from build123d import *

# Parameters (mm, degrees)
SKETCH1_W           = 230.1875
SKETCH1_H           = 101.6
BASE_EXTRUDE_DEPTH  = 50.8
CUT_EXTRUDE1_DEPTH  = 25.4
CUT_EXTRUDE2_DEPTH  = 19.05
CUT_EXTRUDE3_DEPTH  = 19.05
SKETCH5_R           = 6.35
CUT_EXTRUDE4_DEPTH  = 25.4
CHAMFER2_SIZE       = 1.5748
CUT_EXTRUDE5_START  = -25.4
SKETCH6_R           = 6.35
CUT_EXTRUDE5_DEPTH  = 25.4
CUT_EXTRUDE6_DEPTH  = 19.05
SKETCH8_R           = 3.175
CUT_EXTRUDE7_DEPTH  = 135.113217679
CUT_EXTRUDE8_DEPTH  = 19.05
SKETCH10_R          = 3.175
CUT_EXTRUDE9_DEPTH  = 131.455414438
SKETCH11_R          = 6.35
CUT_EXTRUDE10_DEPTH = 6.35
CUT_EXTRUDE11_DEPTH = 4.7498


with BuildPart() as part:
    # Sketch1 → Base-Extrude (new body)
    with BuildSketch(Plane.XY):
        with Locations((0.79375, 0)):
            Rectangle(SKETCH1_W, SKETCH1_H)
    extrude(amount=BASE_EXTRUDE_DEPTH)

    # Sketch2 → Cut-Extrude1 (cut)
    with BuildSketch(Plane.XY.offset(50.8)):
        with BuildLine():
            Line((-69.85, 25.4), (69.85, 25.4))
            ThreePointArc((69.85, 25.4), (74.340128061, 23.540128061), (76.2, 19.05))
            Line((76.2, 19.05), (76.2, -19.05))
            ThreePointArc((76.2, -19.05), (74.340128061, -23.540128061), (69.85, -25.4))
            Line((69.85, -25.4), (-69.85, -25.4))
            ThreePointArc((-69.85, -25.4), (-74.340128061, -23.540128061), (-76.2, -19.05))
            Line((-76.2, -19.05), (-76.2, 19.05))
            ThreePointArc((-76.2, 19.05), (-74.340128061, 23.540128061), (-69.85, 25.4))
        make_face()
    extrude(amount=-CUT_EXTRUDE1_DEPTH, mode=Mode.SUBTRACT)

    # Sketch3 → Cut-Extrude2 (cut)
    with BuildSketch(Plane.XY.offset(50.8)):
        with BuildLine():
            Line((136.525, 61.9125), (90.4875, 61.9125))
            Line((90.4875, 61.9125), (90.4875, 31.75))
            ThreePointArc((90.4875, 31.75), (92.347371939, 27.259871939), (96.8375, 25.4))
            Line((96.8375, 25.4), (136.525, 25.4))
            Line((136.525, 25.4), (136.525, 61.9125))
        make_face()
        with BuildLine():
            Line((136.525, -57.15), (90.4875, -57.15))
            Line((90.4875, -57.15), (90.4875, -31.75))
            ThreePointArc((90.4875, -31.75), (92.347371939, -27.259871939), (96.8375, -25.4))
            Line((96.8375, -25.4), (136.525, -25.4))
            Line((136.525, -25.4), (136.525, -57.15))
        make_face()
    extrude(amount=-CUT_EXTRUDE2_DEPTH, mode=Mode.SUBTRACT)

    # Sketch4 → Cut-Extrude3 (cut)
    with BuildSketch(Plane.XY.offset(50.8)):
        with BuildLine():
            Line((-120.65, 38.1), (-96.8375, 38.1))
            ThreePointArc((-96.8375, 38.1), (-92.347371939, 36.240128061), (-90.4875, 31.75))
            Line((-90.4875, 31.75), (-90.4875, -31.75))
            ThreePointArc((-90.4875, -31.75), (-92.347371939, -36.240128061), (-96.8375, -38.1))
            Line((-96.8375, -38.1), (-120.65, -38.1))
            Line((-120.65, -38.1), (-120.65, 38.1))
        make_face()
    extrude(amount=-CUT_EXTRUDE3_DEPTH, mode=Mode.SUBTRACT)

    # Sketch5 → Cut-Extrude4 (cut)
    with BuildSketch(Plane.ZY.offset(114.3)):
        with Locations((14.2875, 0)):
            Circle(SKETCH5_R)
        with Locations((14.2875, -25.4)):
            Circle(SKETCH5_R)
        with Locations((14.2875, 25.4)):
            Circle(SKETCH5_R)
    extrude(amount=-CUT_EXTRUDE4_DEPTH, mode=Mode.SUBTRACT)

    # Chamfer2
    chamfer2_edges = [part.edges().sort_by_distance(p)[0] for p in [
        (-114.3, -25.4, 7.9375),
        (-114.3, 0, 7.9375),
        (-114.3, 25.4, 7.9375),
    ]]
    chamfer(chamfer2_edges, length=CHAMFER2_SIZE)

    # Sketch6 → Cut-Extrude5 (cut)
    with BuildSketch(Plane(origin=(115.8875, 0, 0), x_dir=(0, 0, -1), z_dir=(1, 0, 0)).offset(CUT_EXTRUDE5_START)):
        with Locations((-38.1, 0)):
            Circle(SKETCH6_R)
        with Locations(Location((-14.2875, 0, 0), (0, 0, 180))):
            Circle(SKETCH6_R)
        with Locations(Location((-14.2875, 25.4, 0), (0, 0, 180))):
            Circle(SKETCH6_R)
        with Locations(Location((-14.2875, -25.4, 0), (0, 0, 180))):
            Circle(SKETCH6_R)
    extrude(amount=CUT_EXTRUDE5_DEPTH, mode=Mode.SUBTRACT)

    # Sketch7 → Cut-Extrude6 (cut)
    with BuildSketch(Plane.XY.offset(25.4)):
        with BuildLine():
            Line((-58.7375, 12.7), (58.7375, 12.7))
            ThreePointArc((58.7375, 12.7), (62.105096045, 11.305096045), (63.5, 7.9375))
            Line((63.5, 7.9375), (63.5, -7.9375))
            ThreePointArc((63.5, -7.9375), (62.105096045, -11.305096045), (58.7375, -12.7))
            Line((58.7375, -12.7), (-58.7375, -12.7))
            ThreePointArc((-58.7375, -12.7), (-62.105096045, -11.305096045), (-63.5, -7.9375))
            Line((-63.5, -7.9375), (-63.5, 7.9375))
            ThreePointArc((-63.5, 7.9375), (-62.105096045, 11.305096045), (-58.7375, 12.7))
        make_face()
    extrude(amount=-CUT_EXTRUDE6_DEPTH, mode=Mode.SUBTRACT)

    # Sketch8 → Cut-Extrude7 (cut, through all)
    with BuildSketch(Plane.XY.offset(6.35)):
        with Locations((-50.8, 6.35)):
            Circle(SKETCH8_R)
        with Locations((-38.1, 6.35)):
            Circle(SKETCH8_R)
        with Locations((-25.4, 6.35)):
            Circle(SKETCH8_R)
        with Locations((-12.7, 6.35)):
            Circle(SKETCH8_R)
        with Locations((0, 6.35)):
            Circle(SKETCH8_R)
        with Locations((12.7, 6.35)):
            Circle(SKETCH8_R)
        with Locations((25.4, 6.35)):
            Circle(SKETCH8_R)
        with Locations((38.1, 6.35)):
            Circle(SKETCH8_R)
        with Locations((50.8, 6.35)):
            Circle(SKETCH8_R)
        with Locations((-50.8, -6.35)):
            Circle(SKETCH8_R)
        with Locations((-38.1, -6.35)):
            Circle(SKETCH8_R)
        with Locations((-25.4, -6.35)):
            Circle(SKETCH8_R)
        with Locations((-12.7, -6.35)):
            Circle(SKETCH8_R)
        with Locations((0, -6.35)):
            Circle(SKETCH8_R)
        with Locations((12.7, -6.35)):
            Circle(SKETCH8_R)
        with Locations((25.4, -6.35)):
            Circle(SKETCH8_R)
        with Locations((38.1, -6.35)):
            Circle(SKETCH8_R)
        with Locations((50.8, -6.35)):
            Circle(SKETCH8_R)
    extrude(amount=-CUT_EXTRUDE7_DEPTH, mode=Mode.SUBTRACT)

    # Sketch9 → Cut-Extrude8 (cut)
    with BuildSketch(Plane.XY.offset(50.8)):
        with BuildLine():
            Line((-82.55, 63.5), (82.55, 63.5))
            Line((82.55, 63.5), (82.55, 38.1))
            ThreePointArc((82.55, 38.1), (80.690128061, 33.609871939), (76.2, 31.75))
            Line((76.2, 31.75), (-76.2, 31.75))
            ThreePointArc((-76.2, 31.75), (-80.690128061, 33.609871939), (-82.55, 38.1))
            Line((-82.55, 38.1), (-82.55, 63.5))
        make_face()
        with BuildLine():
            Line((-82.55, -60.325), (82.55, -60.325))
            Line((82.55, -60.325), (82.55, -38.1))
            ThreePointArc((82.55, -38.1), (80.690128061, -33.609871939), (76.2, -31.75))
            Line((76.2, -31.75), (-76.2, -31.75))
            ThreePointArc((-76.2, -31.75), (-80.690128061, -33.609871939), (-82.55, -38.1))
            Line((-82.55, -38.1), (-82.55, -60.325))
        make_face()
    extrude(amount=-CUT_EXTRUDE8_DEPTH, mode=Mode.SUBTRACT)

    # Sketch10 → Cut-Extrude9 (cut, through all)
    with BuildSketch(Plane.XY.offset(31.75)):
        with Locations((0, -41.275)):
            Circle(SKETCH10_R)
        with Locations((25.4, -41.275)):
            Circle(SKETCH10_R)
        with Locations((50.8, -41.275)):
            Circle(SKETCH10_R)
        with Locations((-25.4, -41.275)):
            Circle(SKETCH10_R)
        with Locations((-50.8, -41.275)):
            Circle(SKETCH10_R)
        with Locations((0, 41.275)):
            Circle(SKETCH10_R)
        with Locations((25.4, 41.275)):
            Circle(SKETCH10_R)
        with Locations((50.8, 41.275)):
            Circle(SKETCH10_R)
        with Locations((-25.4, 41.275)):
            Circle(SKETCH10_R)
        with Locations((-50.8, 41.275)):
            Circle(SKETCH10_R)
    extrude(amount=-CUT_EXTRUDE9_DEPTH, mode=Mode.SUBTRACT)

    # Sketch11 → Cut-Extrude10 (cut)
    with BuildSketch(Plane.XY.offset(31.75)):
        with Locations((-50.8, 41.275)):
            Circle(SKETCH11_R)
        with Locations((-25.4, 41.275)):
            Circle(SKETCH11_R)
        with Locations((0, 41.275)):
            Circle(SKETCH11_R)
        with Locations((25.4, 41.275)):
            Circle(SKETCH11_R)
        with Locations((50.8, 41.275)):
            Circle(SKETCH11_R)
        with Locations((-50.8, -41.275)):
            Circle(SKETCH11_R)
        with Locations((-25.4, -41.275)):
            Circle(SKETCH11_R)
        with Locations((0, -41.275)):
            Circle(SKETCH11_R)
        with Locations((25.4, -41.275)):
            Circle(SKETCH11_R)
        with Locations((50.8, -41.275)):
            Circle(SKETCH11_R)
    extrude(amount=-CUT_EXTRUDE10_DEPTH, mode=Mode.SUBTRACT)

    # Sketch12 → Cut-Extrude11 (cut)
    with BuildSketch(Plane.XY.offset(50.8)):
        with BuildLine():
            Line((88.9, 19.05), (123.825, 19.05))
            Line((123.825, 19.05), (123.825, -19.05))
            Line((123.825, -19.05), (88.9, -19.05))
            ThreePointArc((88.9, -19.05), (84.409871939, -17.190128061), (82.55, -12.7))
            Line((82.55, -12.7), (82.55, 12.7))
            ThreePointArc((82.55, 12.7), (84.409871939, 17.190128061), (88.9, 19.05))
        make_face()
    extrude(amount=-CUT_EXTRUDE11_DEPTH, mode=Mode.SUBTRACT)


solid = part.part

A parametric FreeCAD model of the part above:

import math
import FreeCAD as App
import Part
import Sketcher

V = App.Vector
Q = App.Units.Quantity


def edges_at(feature, points):
    """Names of the edges that pass closest to the given points."""
    edges = feature.Shape.Edges
    near = lambda p: min(range(len(edges)), key=lambda i: edges[i].distToShape(Part.Vertex(*p))[0])
    return sorted({f"Edge{near(p) + 1}" for p in points})


def add_polygon(sketch, points):
    """Adds a closed chain of lines whose ends are joined by coincident constraints."""
    first, n = sketch.GeometryCount, len(points)
    for a, b in zip(points, points[1:] + points[:1]):
        sketch.addGeometry(Part.LineSegment(App.Vector(*a, 0), App.Vector(*b, 0)), False)
    for i in range(n):
        sketch.addConstraint(Sketcher.Constraint("Coincident", first + i, 2, first + (i + 1) % n, 1))

doc = App.newDocument("Part")
body = doc.addObject("PartDesign::Body", "Body")

sketch1 = doc.addObject("Sketcher::SketchObject", "Sketch")
body.addObject(sketch1)
sketch1.AttachmentSupport = (doc.XY_Plane, [""])
sketch1.MapMode = "FlatFace"
add_polygon(sketch1, [(-114, 51), (-114, -51), (116, -51), (116, 51)])
sketch1.addConstraint([
    Sketcher.Constraint("Vertical", 0),
    Sketcher.Constraint("Horizontal", 1),
    Sketcher.Constraint("Vertical", 2),
    Sketcher.Constraint("Horizontal", 3),
    Sketcher.Constraint("DistanceY", 0, 2, 0, 1, Q("4 in")),
    Sketcher.Constraint("DistanceY", 0, 2, -1, 1, Q("2 in")),
    Sketcher.Constraint("DistanceX", 0, 2, -1, 1, Q("4.5 in")),
    Sketcher.Constraint("DistanceX", 1, 1, 1, 2, Q("9.0625 in")),
])
pad1 = doc.addObject("PartDesign::Pad", "Pad")
body.addObject(pad1)
pad1.Profile = sketch1
pad1.Length = Q("2 in")

sketch2 = doc.addObject("Sketcher::SketchObject", "Sketch001")
body.addObject(sketch2)
sketch2.AttachmentSupport = (doc.XY_Plane, [""])
sketch2.MapMode = "FlatFace"
sketch2.AttachmentOffset = App.Placement(V(0, 0, 2 * 25.4), App.Rotation())
sketch2.addGeometry([
    Part.LineSegment(V(70, 25, 0), V(-70, 25, 0)),
    Part.ArcOfCircle(Part.Circle(V(-70, 19, 0), V(0, 0, 1), 6), math.radians(90), math.radians(180)),
    Part.LineSegment(V(-76, 19, 0), V(-76, -19, 0)),
    Part.ArcOfCircle(Part.Circle(V(-70, -19, 0), V(0, 0, 1), 6), math.radians(180), math.radians(270)),
    Part.LineSegment(V(-70, -25, 0), V(70, -25, 0)),
    Part.ArcOfCircle(Part.Circle(V(70, -19, 0), V(0, 0, 1), 6), math.radians(-90), math.radians(0)),
    Part.LineSegment(V(76, -19, 0), V(76, 19, 0)),
    Part.ArcOfCircle(Part.Circle(V(70, 19, 0), V(0, 0, 1), 6), math.radians(0), math.radians(90)),
], False)
sketch2.addConstraint([
    Sketcher.Constraint("Tangent", 0, 2, 1, 1),
    Sketcher.Constraint("Tangent", 1, 2, 2, 1),
    Sketcher.Constraint("Tangent", 2, 2, 3, 1),
    Sketcher.Constraint("Tangent", 3, 2, 4, 1),
    Sketcher.Constraint("Tangent", 4, 2, 5, 1),
    Sketcher.Constraint("Tangent", 5, 2, 6, 1),
    Sketcher.Constraint("Tangent", 6, 2, 7, 1),
    Sketcher.Constraint("Tangent", 7, 2, 0, 1),
    Sketcher.Constraint("Horizontal", 0),
    Sketcher.Constraint("Vertical", 2),
    Sketcher.Constraint("Horizontal", 4),
    Sketcher.Constraint("Vertical", 6),
    Sketcher.Constraint("Equal", 1, 3),
    Sketcher.Constraint("Equal", 3, 5),
    Sketcher.Constraint("Equal", 5, 7),
    Sketcher.Constraint("Symmetric", 1, 3, 5, 3, -1, 1),
    Sketcher.Constraint("Radius", 1, Q("0.25 in")),
    Sketcher.Constraint("DistanceX", 0, 2, 0, 1, Q("5.5 in")),
    Sketcher.Constraint("DistanceY", 2, 2, 2, 1, Q("1.5 in")),
])
pocket1 = doc.addObject("PartDesign::Pocket", "Pocket")
body.addObject(pocket1)
pocket1.Profile = sketch2
pocket1.Length = Q("1 in")

sketch3 = doc.addObject("Sketcher::SketchObject", "Sketch002")
body.addObject(sketch3)
sketch3.AttachmentSupport = (doc.XY_Plane, [""])
sketch3.MapMode = "FlatFace"
sketch3.AttachmentOffset = App.Placement(V(0, 0, 2 * 25.4), App.Rotation())
sketch3.addGeometry([
    Part.LineSegment(V(137, 62, 0), V(90, 62, 0)),
    Part.LineSegment(V(90, 62, 0), V(90, 32, 0)),
    Part.ArcOfCircle(Part.Circle(V(97, 32, 0), V(0, 0, 1), 6), math.radians(180), math.radians(270)),
    Part.LineSegment(V(97, 25, 0), V(137, 25, 0)),
    Part.LineSegment(V(137, 25, 0), V(137, 62, 0)),
    Part.LineSegment(V(90, -57, 0), V(137, -57, 0)),
    Part.LineSegment(V(137, -57, 0), V(137, -25, 0)),
    Part.LineSegment(V(137, -25, 0), V(97, -25, 0)),
    Part.ArcOfCircle(Part.Circle(V(97, -32, 0), V(0, 0, 1), 6), math.radians(90), math.radians(180)),
    Part.LineSegment(V(90, -32, 0), V(90, -57, 0)),
], False)
sketch3.addConstraint([
    Sketcher.Constraint("Coincident", 0, 2, 1, 1),
    Sketcher.Constraint("Tangent", 1, 2, 2, 1),
    Sketcher.Constraint("Tangent", 2, 2, 3, 1),
    Sketcher.Constraint("Coincident", 3, 2, 4, 1),
    Sketcher.Constraint("Coincident", 4, 2, 0, 1),
    Sketcher.Constraint("Coincident", 5, 2, 6, 1),
    Sketcher.Constraint("Coincident", 6, 2, 7, 1),
    Sketcher.Constraint("Tangent", 7, 2, 8, 1),
    Sketcher.Constraint("Tangent", 8, 2, 9, 1),
    Sketcher.Constraint("Coincident", 9, 2, 5, 1),
    Sketcher.Constraint("Horizontal", 0),
    Sketcher.Constraint("Vertical", 1),
    Sketcher.Constraint("Horizontal", 3),
    Sketcher.Constraint("Vertical", 4),
    Sketcher.Constraint("Horizontal", 5),
    Sketcher.Constraint("Vertical", 6),
    Sketcher.Constraint("Horizontal", 7),
    Sketcher.Constraint("Vertical", 9),
    Sketcher.Constraint("Equal", 2, 8),
    Sketcher.Constraint("Symmetric", 2, 3, 8, 3, -1),
    Sketcher.Constraint("Vertical", 4, 2, 5, 2),
    Sketcher.Constraint("DistanceY", 9, 2, 9, 1, Q("1 in")),
    Sketcher.Constraint("Radius", 2, Q("0.25 in")),
    Sketcher.Constraint("DistanceY", -1, 1, 2, 2, Q("1 in")),
    Sketcher.Constraint("DistanceX", 0, 2, 0, 1, Q("1.8125 in")),
    Sketcher.Constraint("DistanceY", 1, 2, 1, 1, Q("1.1875 in")),
    Sketcher.Constraint("DistanceX", -1, 1, 2, 3, Q("3.8125 in")),
])
pocket2 = doc.addObject("PartDesign::Pocket", "Pocket001")
body.addObject(pocket2)
pocket2.Profile = sketch3
pocket2.Length = Q("0.75 in")

sketch4 = doc.addObject("Sketcher::SketchObject", "Sketch003")
body.addObject(sketch4)
sketch4.AttachmentSupport = (doc.XY_Plane, [""])
sketch4.MapMode = "FlatFace"
sketch4.AttachmentOffset = App.Placement(V(0, 0, 2 * 25.4), App.Rotation())
sketch4.addGeometry([
    Part.LineSegment(V(-97, 38, 0), V(-121, 38, 0)),
    Part.LineSegment(V(-121, 38, 0), V(-121, -38, 0)),
    Part.LineSegment(V(-121, -38, 0), V(-97, -38, 0)),
    Part.ArcOfCircle(Part.Circle(V(-97, -32, 0), V(0, 0, 1), 6), math.radians(-90), math.radians(0)),
    Part.LineSegment(V(-90, -32, 0), V(-90, 32, 0)),
    Part.ArcOfCircle(Part.Circle(V(-97, 32, 0), V(0, 0, 1), 6), math.radians(0), math.radians(90)),
], False)
sketch4.addConstraint([
    Sketcher.Constraint("Coincident", 0, 2, 1, 1),
    Sketcher.Constraint("Coincident", 1, 2, 2, 1),
    Sketcher.Constraint("Tangent", 2, 2, 3, 1),
    Sketcher.Constraint("Tangent", 3, 2, 4, 1),
    Sketcher.Constraint("Tangent", 4, 2, 5, 1),
    Sketcher.Constraint("Tangent", 5, 2, 0, 1),
    Sketcher.Constraint("Horizontal", 0),
    Sketcher.Constraint("Vertical", 1),
    Sketcher.Constraint("Horizontal", 2),
    Sketcher.Constraint("Vertical", 4),
    Sketcher.Constraint("Equal", 3, 5),
    Sketcher.Constraint("DistanceY", 1, 2, 1, 1, Q("3 in")),
    Sketcher.Constraint("Radius", 3, Q("0.25 in")),
    Sketcher.Constraint("DistanceY", -1, 1, 0, 2, Q("1.5 in")),
    Sketcher.Constraint("DistanceX", 0, 2, 0, 1, Q("0.9375 in")),
    Sketcher.Constraint("DistanceX", 0, 2, -1, 1, Q("4.75 in")),
])
pocket3 = doc.addObject("PartDesign::Pocket", "Pocket002")
body.addObject(pocket3)
pocket3.Profile = sketch4
pocket3.Length = Q("0.75 in")

sketch5 = doc.addObject("Sketcher::SketchObject", "Sketch004")
body.addObject(sketch5)
sketch5.AttachmentSupport = (doc.YZ_Plane, [""])
sketch5.MapMode = "FlatFace"
sketch5.AttachmentOffset = App.Placement(V(0, 0, -4.5 * 25.4), App.Rotation())
sketch5.addGeometry([
    Part.Circle(V(0, 14, 0), V(0, 0, 1), 6),
    Part.Circle(V(-25, 14, 0), V(0, 0, 1), 6),
    Part.Circle(V(25, 14, 0), V(0, 0, 1), 6),
], False)
sketch5.addConstraint([
    Sketcher.Constraint("Equal", 0, 1),
    Sketcher.Constraint("Equal", 1, 2),
    Sketcher.Constraint("Symmetric", 1, 3, 2, 3, -2),
    Sketcher.Constraint("PointOnObject", 0, 3, -2),
    Sketcher.Constraint("Horizontal", 0, 3, 1, 3),
    Sketcher.Constraint("Diameter", 0, Q("0.5 in")),
    Sketcher.Constraint("DistanceX", 1, 3, -1, 1, Q("1 in")),
    Sketcher.Constraint("DistanceY", -1, 1, 0, 3, Q("0.5625 in")),
])
pocket4 = doc.addObject("PartDesign::Pocket", "Pocket003")
body.addObject(pocket4)
pocket4.Profile = sketch5
pocket4.Length = Q("1 in")
pocket4.Reversed = True
doc.recompute()

chamfer = doc.addObject("PartDesign::Chamfer", "Chamfer")
body.addObject(chamfer)
chamfer.Base = (pocket4, edges_at(pocket4, [(-114.3, -25.4, 7.938), (-114.3, 0, 7.938), (-114.3, 25.4, 7.938)]))
chamfer.Size = Q("0.062 in")

sketch6 = doc.addObject("Sketcher::SketchObject", "Sketch005")
body.addObject(sketch6)
sketch6.AttachmentSupport = (doc.YZ_Plane, [""])
sketch6.MapMode = "FlatFace"
sketch6.AttachmentOffset = App.Placement(V(0, 0, 3.5625 * 25.4), App.Rotation())
sketch6.addGeometry([
    Part.Circle(V(0, 38, 0), V(0, 0, 1), 6),
    Part.Circle(V(0, 14, 0), V(0, 0, 1), 6),
    Part.Circle(V(25, 14, 0), V(0, 0, 1), 6),
    Part.Circle(V(-25, 14, 0), V(0, 0, 1), 6),
], False)
sketch6.addConstraint([
    Sketcher.Constraint("Equal", 0, 1),
    Sketcher.Constraint("Equal", 1, 2),
    Sketcher.Constraint("Equal", 2, 3),
    Sketcher.Constraint("Symmetric", 2, 3, 3, 3, -2),
    Sketcher.Constraint("PointOnObject", 0, 3, -2),
    Sketcher.Constraint("PointOnObject", 1, 3, -2),
    Sketcher.Constraint("Horizontal", 1, 3, 2, 3),
    Sketcher.Constraint("Diameter", 0, Q("0.5 in")),
    Sketcher.Constraint("DistanceX", -1, 1, 2, 3, Q("1 in")),
    Sketcher.Constraint("DistanceY", -1, 1, 0, 3, Q("1.5 in")),
    Sketcher.Constraint("DistanceY", -1, 1, 1, 3, Q("0.5625 in")),
])
pocket5 = doc.addObject("PartDesign::Pocket", "Pocket004")
body.addObject(pocket5)
pocket5.Profile = sketch6
pocket5.Length = Q("1 in")
pocket5.Reversed = True

sketch7 = doc.addObject("Sketcher::SketchObject", "Sketch006")
body.addObject(sketch7)
sketch7.AttachmentSupport = (doc.XY_Plane, [""])
sketch7.MapMode = "FlatFace"
sketch7.AttachmentOffset = App.Placement(V(0, 0, 1 * 25.4), App.Rotation())
sketch7.addGeometry([
    Part.LineSegment(V(58.7, 12.7, 0), V(-58.7, 12.7, 0)),
    Part.ArcOfCircle(Part.Circle(V(-58.7, 7.9, 0), V(0, 0, 1), 4.8), math.radians(90), math.radians(180)),
    Part.LineSegment(V(-63.5, 7.9, 0), V(-63.5, -7.9, 0)),
    Part.ArcOfCircle(Part.Circle(V(-58.7, -7.9, 0), V(0, 0, 1), 4.8), math.radians(-180), math.radians(-90)),
    Part.LineSegment(V(-58.7, -12.7, 0), V(58.7, -12.7, 0)),
    Part.ArcOfCircle(Part.Circle(V(58.7, -7.9, 0), V(0, 0, 1), 4.8), math.radians(-90), math.radians(0)),
    Part.LineSegment(V(63.5, -7.9, 0), V(63.5, 7.9, 0)),
    Part.ArcOfCircle(Part.Circle(V(58.7, 7.9, 0), V(0, 0, 1), 4.8), math.radians(0), math.radians(90)),
], False)
sketch7.addConstraint([
    Sketcher.Constraint("Tangent", 0, 2, 1, 1),
    Sketcher.Constraint("Tangent", 1, 2, 2, 1),
    Sketcher.Constraint("Tangent", 2, 2, 3, 1),
    Sketcher.Constraint("Tangent", 3, 2, 4, 1),
    Sketcher.Constraint("Tangent", 4, 2, 5, 1),
    Sketcher.Constraint("Tangent", 5, 2, 6, 1),
    Sketcher.Constraint("Tangent", 6, 2, 7, 1),
    Sketcher.Constraint("Tangent", 7, 2, 0, 1),
    Sketcher.Constraint("Horizontal", 0),
    Sketcher.Constraint("Vertical", 2),
    Sketcher.Constraint("Horizontal", 4),
    Sketcher.Constraint("Vertical", 6),
    Sketcher.Constraint("Equal", 1, 3),
    Sketcher.Constraint("Equal", 3, 5),
    Sketcher.Constraint("Equal", 5, 7),
    Sketcher.Constraint("Symmetric", 1, 3, 5, 3, -1, 1),
    Sketcher.Constraint("Radius", 1, Q("0.1875 in")),
    Sketcher.Constraint("DistanceY", 3, 2, 0, 2, Q("1 in")),
    Sketcher.Constraint("DistanceX", 1, 2, -1, 1, Q("2.5 in")),
])
pocket6 = doc.addObject("PartDesign::Pocket", "Pocket005")
body.addObject(pocket6)
pocket6.Profile = sketch7
pocket6.Length = Q("0.75 in")

sketch8 = doc.addObject("Sketcher::SketchObject", "Sketch007")
body.addObject(sketch8)
sketch8.AttachmentSupport = (doc.XY_Plane, [""])
sketch8.MapMode = "FlatFace"
sketch8.AttachmentOffset = App.Placement(V(0, 0, 0.25 * 25.4), App.Rotation())
sketch8.addGeometry([
    Part.Circle(V(-50.8, 6.3, 0), V(0, 0, 1), 3.2),
    Part.Circle(V(-38.1, 6.3, 0), V(0, 0, 1), 3.2),
    Part.Circle(V(-25.4, 6.3, 0), V(0, 0, 1), 3.2),
    Part.Circle(V(-12.7, 6.3, 0), V(0, 0, 1), 3.2),
    Part.Circle(V(0, 6.3, 0), V(0, 0, 1), 3.2),
    Part.Circle(V(12.7, 6.3, 0), V(0, 0, 1), 3.2),
    Part.Circle(V(25.4, 6.3, 0), V(0, 0, 1), 3.2),
    Part.Circle(V(38.1, 6.3, 0), V(0, 0, 1), 3.2),
    Part.Circle(V(50.8, 6.3, 0), V(0, 0, 1), 3.2),
    Part.Circle(V(-50.8, -6.3, 0), V(0, 0, 1), 3.2),
    Part.Circle(V(-38.1, -6.3, 0), V(0, 0, 1), 3.2),
    Part.Circle(V(-25.4, -6.3, 0), V(0, 0, 1), 3.2),
    Part.Circle(V(-12.7, -6.3, 0), V(0, 0, 1), 3.2),
    Part.Circle(V(0, -6.3, 0), V(0, 0, 1), 3.2),
    Part.Circle(V(12.7, -6.3, 0), V(0, 0, 1), 3.2),
    Part.Circle(V(25.4, -6.3, 0), V(0, 0, 1), 3.2),
    Part.Circle(V(38.1, -6.3, 0), V(0, 0, 1), 3.2),
    Part.Circle(V(50.8, -6.3, 0), V(0, 0, 1), 3.2),
], False)
sketch8.addConstraint([
    Sketcher.Constraint("Equal", 0, 1),
    Sketcher.Constraint("Equal", 1, 2),
    Sketcher.Constraint("Equal", 2, 3),
    Sketcher.Constraint("Equal", 3, 4),
    Sketcher.Constraint("Equal", 4, 5),
    Sketcher.Constraint("Equal", 5, 6),
    Sketcher.Constraint("Equal", 6, 7),
    Sketcher.Constraint("Equal", 7, 8),
    Sketcher.Constraint("Equal", 8, 9),
    Sketcher.Constraint("Equal", 9, 10),
    Sketcher.Constraint("Equal", 10, 11),
    Sketcher.Constraint("Equal", 11, 12),
    Sketcher.Constraint("Equal", 12, 13),
    Sketcher.Constraint("Equal", 13, 14),
    Sketcher.Constraint("Equal", 14, 15),
    Sketcher.Constraint("Equal", 15, 16),
    Sketcher.Constraint("Equal", 16, 17),
    Sketcher.Constraint("Symmetric", 8, 3, 9, 3, -1, 1),
    Sketcher.Constraint("Symmetric", 7, 3, 10, 3, -1, 1),
    Sketcher.Constraint("Symmetric", 6, 3, 11, 3, -1, 1),
    Sketcher.Constraint("Symmetric", 5, 3, 12, 3, -1, 1),
    Sketcher.Constraint("Symmetric", 4, 3, 13, 3, -1, 1),
    Sketcher.Constraint("Symmetric", 3, 3, 14, 3, -1, 1),
    Sketcher.Constraint("Symmetric", 2, 3, 15, 3, -1, 1),
    Sketcher.Constraint("Symmetric", 1, 3, 16, 3, -1, 1),
    Sketcher.Constraint("Symmetric", 0, 3, 17, 3, -1, 1),
    Sketcher.Constraint("Symmetric", 3, 3, 5, 3, -2),
    Sketcher.Constraint("Symmetric", 2, 3, 6, 3, -2),
    Sketcher.Constraint("Symmetric", 1, 3, 7, 3, -2),
    Sketcher.Constraint("Symmetric", 0, 3, 8, 3, -2),
    Sketcher.Constraint("PointOnObject", 4, 3, -2),
    Sketcher.Constraint("Horizontal", 0, 3, 1, 3),
    Sketcher.Constraint("Horizontal", 1, 3, 2, 3),
    Sketcher.Constraint("Horizontal", 2, 3, 3, 3),
    Sketcher.Constraint("Horizontal", 3, 3, 4, 3),
    Sketcher.Constraint("Diameter", 0, Q("0.25 in")),
    Sketcher.Constraint("DistanceX", 0, 3, -1, 1, Q("2 in")),
    Sketcher.Constraint("DistanceX", 2, 3, -1, 1, Q("1 in")),
    Sketcher.Constraint("DistanceX", 1, 3, 3, 3, Q("1 in")),
    Sketcher.Constraint("DistanceX", 3, 3, 5, 3, Q("1 in")),
    Sketcher.Constraint("DistanceY", 9, 3, 0, 3, Q("0.5 in")),
])
pocket7 = doc.addObject("PartDesign::Pocket", "Pocket006")
body.addObject(pocket7)
pocket7.Profile = sketch8
pocket7.Type = "ThroughAll"

sketch9 = doc.addObject("Sketcher::SketchObject", "Sketch008")
body.addObject(sketch9)
sketch9.AttachmentSupport = (doc.XY_Plane, [""])
sketch9.MapMode = "FlatFace"
sketch9.AttachmentOffset = App.Placement(V(0, 0, 2 * 25.4), App.Rotation())
sketch9.addGeometry([
    Part.LineSegment(V(83, 64, 0), V(-83, 64, 0)),
    Part.LineSegment(V(-83, 64, 0), V(-83, 38, 0)),
    Part.ArcOfCircle(Part.Circle(V(-76, 38, 0), V(0, 0, 1), 6), math.radians(180), math.radians(270)),
    Part.LineSegment(V(-76, 32, 0), V(76, 32, 0)),
    Part.ArcOfCircle(Part.Circle(V(76, 38, 0), V(0, 0, 1), 6), math.radians(-90), math.radians(0)),
    Part.LineSegment(V(83, 38, 0), V(83, 64, 0)),
    Part.LineSegment(V(-83, -60, 0), V(83, -60, 0)),
    Part.LineSegment(V(83, -60, 0), V(83, -38, 0)),
    Part.ArcOfCircle(Part.Circle(V(76, -38, 0), V(0, 0, 1), 6), math.radians(0), math.radians(90)),
    Part.LineSegment(V(76, -32, 0), V(-76, -32, 0)),
    Part.ArcOfCircle(Part.Circle(V(-76, -38, 0), V(0, 0, 1), 6), math.radians(90), math.radians(180)),
    Part.LineSegment(V(-83, -38, 0), V(-83, -60, 0)),
], False)
sketch9.addConstraint([
    Sketcher.Constraint("Coincident", 0, 2, 1, 1),
    Sketcher.Constraint("Tangent", 1, 2, 2, 1),
    Sketcher.Constraint("Tangent", 2, 2, 3, 1),
    Sketcher.Constraint("Tangent", 3, 2, 4, 1),
    Sketcher.Constraint("Tangent", 4, 2, 5, 1),
    Sketcher.Constraint("Coincident", 5, 2, 0, 1),
    Sketcher.Constraint("Coincident", 6, 2, 7, 1),
    Sketcher.Constraint("Tangent", 7, 2, 8, 1),
    Sketcher.Constraint("Tangent", 8, 2, 9, 1),
    Sketcher.Constraint("Tangent", 9, 2, 10, 1),
    Sketcher.Constraint("Tangent", 10, 2, 11, 1),
    Sketcher.Constraint("Coincident", 11, 2, 6, 1),
    Sketcher.Constraint("Horizontal", 0),
    Sketcher.Constraint("Vertical", 1),
    Sketcher.Constraint("Horizontal", 3),
    Sketcher.Constraint("Vertical", 5),
    Sketcher.Constraint("Horizontal", 6),
    Sketcher.Constraint("Vertical", 7),
    Sketcher.Constraint("Horizontal", 9),
    Sketcher.Constraint("Vertical", 11),
    Sketcher.Constraint("Equal", 2, 4),
    Sketcher.Constraint("Equal", 4, 8),
    Sketcher.Constraint("Equal", 8, 10),
    Sketcher.Constraint("Symmetric", 2, 3, 8, 3, -1, 1),
    Sketcher.Constraint("Vertical", 4, 3, 8, 3),
    Sketcher.Constraint("Vertical", 2, 3, 10, 3),
    Sketcher.Constraint("DistanceX", 3, 1, 3, 2, Q("6 in")),
    Sketcher.Constraint("DistanceY", 1, 2, 1, 1, Q("1 in")),
    Sketcher.Constraint("Radius", 2, Q("0.25 in")),
    Sketcher.Constraint("DistanceY", 8, 3, 4, 3, Q("3 in")),
    Sketcher.Constraint("DistanceY", 7, 1, 7, 2, Q("0.875 in")),
])
pocket8 = doc.addObject("PartDesign::Pocket", "Pocket007")
body.addObject(pocket8)
pocket8.Profile = sketch9
pocket8.Length = Q("0.75 in")

sketch10 = doc.addObject("Sketcher::SketchObject", "Sketch009")
body.addObject(sketch10)
sketch10.AttachmentSupport = (doc.XY_Plane, [""])
sketch10.MapMode = "FlatFace"
sketch10.AttachmentOffset = App.Placement(V(0, 0, 1.25 * 25.4), App.Rotation())
sketch10.addGeometry([
    Part.Circle(V(0, -41.3, 0), V(0, 0, 1), 3.2),
    Part.Circle(V(25.4, -41.3, 0), V(0, 0, 1), 3.2),
    Part.Circle(V(50.8, -41.3, 0), V(0, 0, 1), 3.2),
    Part.Circle(V(-25.4, -41.3, 0), V(0, 0, 1), 3.2),
    Part.Circle(V(-50.8, -41.3, 0), V(0, 0, 1), 3.2),
    Part.Circle(V(0, 41.3, 0), V(0, 0, 1), 3.2),
    Part.Circle(V(25.4, 41.3, 0), V(0, 0, 1), 3.2),
    Part.Circle(V(50.8, 41.3, 0), V(0, 0, 1), 3.2),
    Part.Circle(V(-25.4, 41.3, 0), V(0, 0, 1), 3.2),
    Part.Circle(V(-50.8, 41.3, 0), V(0, 0, 1), 3.2),
], False)
sketch10.addConstraint([
    Sketcher.Constraint("Equal", 0, 1),
    Sketcher.Constraint("Equal", 1, 2),
    Sketcher.Constraint("Equal", 2, 3),
    Sketcher.Constraint("Equal", 3, 4),
    Sketcher.Constraint("Equal", 4, 5),
    Sketcher.Constraint("Equal", 5, 6),
    Sketcher.Constraint("Equal", 6, 7),
    Sketcher.Constraint("Equal", 7, 8),
    Sketcher.Constraint("Equal", 8, 9),
    Sketcher.Constraint("Symmetric", 0, 3, 5, 3, -1, 1),
    Sketcher.Constraint("Symmetric", 3, 3, 6, 3, -1, 1),
    Sketcher.Constraint("Symmetric", 4, 3, 7, 3, -1, 1),
    Sketcher.Constraint("Symmetric", 1, 3, 8, 3, -1, 1),
    Sketcher.Constraint("Symmetric", 2, 3, 9, 3, -1, 1),
    Sketcher.Constraint("Symmetric", 1, 3, 3, 3, -2),
    Sketcher.Constraint("Symmetric", 2, 3, 4, 3, -2),
    Sketcher.Constraint("PointOnObject", 0, 3, -2),
    Sketcher.Constraint("Horizontal", 0, 3, 1, 3),
    Sketcher.Constraint("Horizontal", 1, 3, 2, 3),
    Sketcher.Constraint("Diameter", 0, Q("0.25 in")),
    Sketcher.Constraint("DistanceX", -1, 1, 1, 3, Q("1 in")),
    Sketcher.Constraint("DistanceX", -1, 1, 2, 3, Q("2 in")),
    Sketcher.Constraint("DistanceY", 0, 3, 5, 3, Q("3.25 in")),
])
pocket9 = doc.addObject("PartDesign::Pocket", "Pocket008")
body.addObject(pocket9)
pocket9.Profile = sketch10
pocket9.Type = "ThroughAll"

sketch11 = doc.addObject("Sketcher::SketchObject", "Sketch010")
body.addObject(sketch11)
sketch11.AttachmentSupport = (doc.XY_Plane, [""])
sketch11.MapMode = "FlatFace"
sketch11.AttachmentOffset = App.Placement(V(0, 0, 1.25 * 25.4), App.Rotation())
sketch11.addGeometry([
    Part.Circle(V(-51, 41, 0), V(0, 0, 1), 6),
    Part.Circle(V(-25, 41, 0), V(0, 0, 1), 6),
    Part.Circle(V(0, 41, 0), V(0, 0, 1), 6),
    Part.Circle(V(25, 41, 0), V(0, 0, 1), 6),
    Part.Circle(V(51, 41, 0), V(0, 0, 1), 6),
    Part.Circle(V(-51, -41, 0), V(0, 0, 1), 6),
    Part.Circle(V(-25, -41, 0), V(0, 0, 1), 6),
    Part.Circle(V(0, -41, 0), V(0, 0, 1), 6),
    Part.Circle(V(25, -41, 0), V(0, 0, 1), 6),
    Part.Circle(V(51, -41, 0), V(0, 0, 1), 6),
], False)
sketch11.addConstraint([
    Sketcher.Constraint("Equal", 0, 1),
    Sketcher.Constraint("Equal", 1, 2),
    Sketcher.Constraint("Equal", 2, 3),
    Sketcher.Constraint("Equal", 3, 4),
    Sketcher.Constraint("Equal", 4, 5),
    Sketcher.Constraint("Equal", 5, 6),
    Sketcher.Constraint("Equal", 6, 7),
    Sketcher.Constraint("Equal", 7, 8),
    Sketcher.Constraint("Equal", 8, 9),
    Sketcher.Constraint("Symmetric", 4, 3, 5, 3, -1, 1),
    Sketcher.Constraint("Symmetric", 3, 3, 6, 3, -1, 1),
    Sketcher.Constraint("Symmetric", 2, 3, 7, 3, -1, 1),
    Sketcher.Constraint("Symmetric", 1, 3, 8, 3, -1, 1),
    Sketcher.Constraint("Symmetric", 0, 3, 9, 3, -1, 1),
    Sketcher.Constraint("Symmetric", 1, 3, 3, 3, -2),
    Sketcher.Constraint("Symmetric", 0, 3, 4, 3, -2),
    Sketcher.Constraint("PointOnObject", 2, 3, -2),
    Sketcher.Constraint("Horizontal", 0, 3, 1, 3),
    Sketcher.Constraint("Horizontal", 1, 3, 2, 3),
    Sketcher.Constraint("Diameter", 0, Q("0.5 in")),
    Sketcher.Constraint("DistanceX", 0, 3, -1, 1, Q("2 in")),
    Sketcher.Constraint("DistanceX", 1, 3, -1, 1, Q("1 in")),
    Sketcher.Constraint("DistanceY", 5, 3, 0, 3, Q("3.25 in")),
])
pocket10 = doc.addObject("PartDesign::Pocket", "Pocket009")
body.addObject(pocket10)
pocket10.Profile = sketch11
pocket10.Length = Q("0.25 in")

sketch12 = doc.addObject("Sketcher::SketchObject", "Sketch011")
body.addObject(sketch12)
sketch12.AttachmentSupport = (doc.XY_Plane, [""])
sketch12.MapMode = "FlatFace"
sketch12.AttachmentOffset = App.Placement(V(0, 0, 2 * 25.4), App.Rotation())
sketch12.addGeometry([
    Part.LineSegment(V(124, 19, 0), V(89, 19, 0)),
    Part.ArcOfCircle(Part.Circle(V(89, 13, 0), V(0, 0, 1), 6), math.radians(90), math.radians(180)),
    Part.LineSegment(V(83, 13, 0), V(83, -13, 0)),
    Part.ArcOfCircle(Part.Circle(V(89, -13, 0), V(0, 0, 1), 6), math.radians(180), math.radians(270)),
    Part.LineSegment(V(89, -19, 0), V(124, -19, 0)),
    Part.LineSegment(V(124, -19, 0), V(124, 19, 0)),
], False)
sketch12.addConstraint([
    Sketcher.Constraint("Tangent", 0, 2, 1, 1),
    Sketcher.Constraint("Tangent", 1, 2, 2, 1),
    Sketcher.Constraint("Tangent", 2, 2, 3, 1),
    Sketcher.Constraint("Tangent", 3, 2, 4, 1),
    Sketcher.Constraint("Coincident", 4, 2, 5, 1),
    Sketcher.Constraint("Coincident", 5, 2, 0, 1),
    Sketcher.Constraint("Horizontal", 0),
    Sketcher.Constraint("Vertical", 2),
    Sketcher.Constraint("Horizontal", 4),
    Sketcher.Constraint("Vertical", 5),
    Sketcher.Constraint("Equal", 1, 3),
    Sketcher.Constraint("DistanceY", 2, 2, 2, 1, Q("1 in")),
    Sketcher.Constraint("Radius", 1, Q("0.25 in")),
    Sketcher.Constraint("DistanceX", -1, 1, 1, 3, Q("3.5 in")),
    Sketcher.Constraint("DistanceY", -1, 1, 1, 3, Q("0.5 in")),
    Sketcher.Constraint("DistanceX", 0, 2, 0, 1, Q("1.375 in")),
])
pocket11 = doc.addObject("PartDesign::Pocket", "Pocket010")
body.addObject(pocket11)
pocket11.Profile = sketch12
pocket11.Length = Q("0.187 in")

doc.recompute()
